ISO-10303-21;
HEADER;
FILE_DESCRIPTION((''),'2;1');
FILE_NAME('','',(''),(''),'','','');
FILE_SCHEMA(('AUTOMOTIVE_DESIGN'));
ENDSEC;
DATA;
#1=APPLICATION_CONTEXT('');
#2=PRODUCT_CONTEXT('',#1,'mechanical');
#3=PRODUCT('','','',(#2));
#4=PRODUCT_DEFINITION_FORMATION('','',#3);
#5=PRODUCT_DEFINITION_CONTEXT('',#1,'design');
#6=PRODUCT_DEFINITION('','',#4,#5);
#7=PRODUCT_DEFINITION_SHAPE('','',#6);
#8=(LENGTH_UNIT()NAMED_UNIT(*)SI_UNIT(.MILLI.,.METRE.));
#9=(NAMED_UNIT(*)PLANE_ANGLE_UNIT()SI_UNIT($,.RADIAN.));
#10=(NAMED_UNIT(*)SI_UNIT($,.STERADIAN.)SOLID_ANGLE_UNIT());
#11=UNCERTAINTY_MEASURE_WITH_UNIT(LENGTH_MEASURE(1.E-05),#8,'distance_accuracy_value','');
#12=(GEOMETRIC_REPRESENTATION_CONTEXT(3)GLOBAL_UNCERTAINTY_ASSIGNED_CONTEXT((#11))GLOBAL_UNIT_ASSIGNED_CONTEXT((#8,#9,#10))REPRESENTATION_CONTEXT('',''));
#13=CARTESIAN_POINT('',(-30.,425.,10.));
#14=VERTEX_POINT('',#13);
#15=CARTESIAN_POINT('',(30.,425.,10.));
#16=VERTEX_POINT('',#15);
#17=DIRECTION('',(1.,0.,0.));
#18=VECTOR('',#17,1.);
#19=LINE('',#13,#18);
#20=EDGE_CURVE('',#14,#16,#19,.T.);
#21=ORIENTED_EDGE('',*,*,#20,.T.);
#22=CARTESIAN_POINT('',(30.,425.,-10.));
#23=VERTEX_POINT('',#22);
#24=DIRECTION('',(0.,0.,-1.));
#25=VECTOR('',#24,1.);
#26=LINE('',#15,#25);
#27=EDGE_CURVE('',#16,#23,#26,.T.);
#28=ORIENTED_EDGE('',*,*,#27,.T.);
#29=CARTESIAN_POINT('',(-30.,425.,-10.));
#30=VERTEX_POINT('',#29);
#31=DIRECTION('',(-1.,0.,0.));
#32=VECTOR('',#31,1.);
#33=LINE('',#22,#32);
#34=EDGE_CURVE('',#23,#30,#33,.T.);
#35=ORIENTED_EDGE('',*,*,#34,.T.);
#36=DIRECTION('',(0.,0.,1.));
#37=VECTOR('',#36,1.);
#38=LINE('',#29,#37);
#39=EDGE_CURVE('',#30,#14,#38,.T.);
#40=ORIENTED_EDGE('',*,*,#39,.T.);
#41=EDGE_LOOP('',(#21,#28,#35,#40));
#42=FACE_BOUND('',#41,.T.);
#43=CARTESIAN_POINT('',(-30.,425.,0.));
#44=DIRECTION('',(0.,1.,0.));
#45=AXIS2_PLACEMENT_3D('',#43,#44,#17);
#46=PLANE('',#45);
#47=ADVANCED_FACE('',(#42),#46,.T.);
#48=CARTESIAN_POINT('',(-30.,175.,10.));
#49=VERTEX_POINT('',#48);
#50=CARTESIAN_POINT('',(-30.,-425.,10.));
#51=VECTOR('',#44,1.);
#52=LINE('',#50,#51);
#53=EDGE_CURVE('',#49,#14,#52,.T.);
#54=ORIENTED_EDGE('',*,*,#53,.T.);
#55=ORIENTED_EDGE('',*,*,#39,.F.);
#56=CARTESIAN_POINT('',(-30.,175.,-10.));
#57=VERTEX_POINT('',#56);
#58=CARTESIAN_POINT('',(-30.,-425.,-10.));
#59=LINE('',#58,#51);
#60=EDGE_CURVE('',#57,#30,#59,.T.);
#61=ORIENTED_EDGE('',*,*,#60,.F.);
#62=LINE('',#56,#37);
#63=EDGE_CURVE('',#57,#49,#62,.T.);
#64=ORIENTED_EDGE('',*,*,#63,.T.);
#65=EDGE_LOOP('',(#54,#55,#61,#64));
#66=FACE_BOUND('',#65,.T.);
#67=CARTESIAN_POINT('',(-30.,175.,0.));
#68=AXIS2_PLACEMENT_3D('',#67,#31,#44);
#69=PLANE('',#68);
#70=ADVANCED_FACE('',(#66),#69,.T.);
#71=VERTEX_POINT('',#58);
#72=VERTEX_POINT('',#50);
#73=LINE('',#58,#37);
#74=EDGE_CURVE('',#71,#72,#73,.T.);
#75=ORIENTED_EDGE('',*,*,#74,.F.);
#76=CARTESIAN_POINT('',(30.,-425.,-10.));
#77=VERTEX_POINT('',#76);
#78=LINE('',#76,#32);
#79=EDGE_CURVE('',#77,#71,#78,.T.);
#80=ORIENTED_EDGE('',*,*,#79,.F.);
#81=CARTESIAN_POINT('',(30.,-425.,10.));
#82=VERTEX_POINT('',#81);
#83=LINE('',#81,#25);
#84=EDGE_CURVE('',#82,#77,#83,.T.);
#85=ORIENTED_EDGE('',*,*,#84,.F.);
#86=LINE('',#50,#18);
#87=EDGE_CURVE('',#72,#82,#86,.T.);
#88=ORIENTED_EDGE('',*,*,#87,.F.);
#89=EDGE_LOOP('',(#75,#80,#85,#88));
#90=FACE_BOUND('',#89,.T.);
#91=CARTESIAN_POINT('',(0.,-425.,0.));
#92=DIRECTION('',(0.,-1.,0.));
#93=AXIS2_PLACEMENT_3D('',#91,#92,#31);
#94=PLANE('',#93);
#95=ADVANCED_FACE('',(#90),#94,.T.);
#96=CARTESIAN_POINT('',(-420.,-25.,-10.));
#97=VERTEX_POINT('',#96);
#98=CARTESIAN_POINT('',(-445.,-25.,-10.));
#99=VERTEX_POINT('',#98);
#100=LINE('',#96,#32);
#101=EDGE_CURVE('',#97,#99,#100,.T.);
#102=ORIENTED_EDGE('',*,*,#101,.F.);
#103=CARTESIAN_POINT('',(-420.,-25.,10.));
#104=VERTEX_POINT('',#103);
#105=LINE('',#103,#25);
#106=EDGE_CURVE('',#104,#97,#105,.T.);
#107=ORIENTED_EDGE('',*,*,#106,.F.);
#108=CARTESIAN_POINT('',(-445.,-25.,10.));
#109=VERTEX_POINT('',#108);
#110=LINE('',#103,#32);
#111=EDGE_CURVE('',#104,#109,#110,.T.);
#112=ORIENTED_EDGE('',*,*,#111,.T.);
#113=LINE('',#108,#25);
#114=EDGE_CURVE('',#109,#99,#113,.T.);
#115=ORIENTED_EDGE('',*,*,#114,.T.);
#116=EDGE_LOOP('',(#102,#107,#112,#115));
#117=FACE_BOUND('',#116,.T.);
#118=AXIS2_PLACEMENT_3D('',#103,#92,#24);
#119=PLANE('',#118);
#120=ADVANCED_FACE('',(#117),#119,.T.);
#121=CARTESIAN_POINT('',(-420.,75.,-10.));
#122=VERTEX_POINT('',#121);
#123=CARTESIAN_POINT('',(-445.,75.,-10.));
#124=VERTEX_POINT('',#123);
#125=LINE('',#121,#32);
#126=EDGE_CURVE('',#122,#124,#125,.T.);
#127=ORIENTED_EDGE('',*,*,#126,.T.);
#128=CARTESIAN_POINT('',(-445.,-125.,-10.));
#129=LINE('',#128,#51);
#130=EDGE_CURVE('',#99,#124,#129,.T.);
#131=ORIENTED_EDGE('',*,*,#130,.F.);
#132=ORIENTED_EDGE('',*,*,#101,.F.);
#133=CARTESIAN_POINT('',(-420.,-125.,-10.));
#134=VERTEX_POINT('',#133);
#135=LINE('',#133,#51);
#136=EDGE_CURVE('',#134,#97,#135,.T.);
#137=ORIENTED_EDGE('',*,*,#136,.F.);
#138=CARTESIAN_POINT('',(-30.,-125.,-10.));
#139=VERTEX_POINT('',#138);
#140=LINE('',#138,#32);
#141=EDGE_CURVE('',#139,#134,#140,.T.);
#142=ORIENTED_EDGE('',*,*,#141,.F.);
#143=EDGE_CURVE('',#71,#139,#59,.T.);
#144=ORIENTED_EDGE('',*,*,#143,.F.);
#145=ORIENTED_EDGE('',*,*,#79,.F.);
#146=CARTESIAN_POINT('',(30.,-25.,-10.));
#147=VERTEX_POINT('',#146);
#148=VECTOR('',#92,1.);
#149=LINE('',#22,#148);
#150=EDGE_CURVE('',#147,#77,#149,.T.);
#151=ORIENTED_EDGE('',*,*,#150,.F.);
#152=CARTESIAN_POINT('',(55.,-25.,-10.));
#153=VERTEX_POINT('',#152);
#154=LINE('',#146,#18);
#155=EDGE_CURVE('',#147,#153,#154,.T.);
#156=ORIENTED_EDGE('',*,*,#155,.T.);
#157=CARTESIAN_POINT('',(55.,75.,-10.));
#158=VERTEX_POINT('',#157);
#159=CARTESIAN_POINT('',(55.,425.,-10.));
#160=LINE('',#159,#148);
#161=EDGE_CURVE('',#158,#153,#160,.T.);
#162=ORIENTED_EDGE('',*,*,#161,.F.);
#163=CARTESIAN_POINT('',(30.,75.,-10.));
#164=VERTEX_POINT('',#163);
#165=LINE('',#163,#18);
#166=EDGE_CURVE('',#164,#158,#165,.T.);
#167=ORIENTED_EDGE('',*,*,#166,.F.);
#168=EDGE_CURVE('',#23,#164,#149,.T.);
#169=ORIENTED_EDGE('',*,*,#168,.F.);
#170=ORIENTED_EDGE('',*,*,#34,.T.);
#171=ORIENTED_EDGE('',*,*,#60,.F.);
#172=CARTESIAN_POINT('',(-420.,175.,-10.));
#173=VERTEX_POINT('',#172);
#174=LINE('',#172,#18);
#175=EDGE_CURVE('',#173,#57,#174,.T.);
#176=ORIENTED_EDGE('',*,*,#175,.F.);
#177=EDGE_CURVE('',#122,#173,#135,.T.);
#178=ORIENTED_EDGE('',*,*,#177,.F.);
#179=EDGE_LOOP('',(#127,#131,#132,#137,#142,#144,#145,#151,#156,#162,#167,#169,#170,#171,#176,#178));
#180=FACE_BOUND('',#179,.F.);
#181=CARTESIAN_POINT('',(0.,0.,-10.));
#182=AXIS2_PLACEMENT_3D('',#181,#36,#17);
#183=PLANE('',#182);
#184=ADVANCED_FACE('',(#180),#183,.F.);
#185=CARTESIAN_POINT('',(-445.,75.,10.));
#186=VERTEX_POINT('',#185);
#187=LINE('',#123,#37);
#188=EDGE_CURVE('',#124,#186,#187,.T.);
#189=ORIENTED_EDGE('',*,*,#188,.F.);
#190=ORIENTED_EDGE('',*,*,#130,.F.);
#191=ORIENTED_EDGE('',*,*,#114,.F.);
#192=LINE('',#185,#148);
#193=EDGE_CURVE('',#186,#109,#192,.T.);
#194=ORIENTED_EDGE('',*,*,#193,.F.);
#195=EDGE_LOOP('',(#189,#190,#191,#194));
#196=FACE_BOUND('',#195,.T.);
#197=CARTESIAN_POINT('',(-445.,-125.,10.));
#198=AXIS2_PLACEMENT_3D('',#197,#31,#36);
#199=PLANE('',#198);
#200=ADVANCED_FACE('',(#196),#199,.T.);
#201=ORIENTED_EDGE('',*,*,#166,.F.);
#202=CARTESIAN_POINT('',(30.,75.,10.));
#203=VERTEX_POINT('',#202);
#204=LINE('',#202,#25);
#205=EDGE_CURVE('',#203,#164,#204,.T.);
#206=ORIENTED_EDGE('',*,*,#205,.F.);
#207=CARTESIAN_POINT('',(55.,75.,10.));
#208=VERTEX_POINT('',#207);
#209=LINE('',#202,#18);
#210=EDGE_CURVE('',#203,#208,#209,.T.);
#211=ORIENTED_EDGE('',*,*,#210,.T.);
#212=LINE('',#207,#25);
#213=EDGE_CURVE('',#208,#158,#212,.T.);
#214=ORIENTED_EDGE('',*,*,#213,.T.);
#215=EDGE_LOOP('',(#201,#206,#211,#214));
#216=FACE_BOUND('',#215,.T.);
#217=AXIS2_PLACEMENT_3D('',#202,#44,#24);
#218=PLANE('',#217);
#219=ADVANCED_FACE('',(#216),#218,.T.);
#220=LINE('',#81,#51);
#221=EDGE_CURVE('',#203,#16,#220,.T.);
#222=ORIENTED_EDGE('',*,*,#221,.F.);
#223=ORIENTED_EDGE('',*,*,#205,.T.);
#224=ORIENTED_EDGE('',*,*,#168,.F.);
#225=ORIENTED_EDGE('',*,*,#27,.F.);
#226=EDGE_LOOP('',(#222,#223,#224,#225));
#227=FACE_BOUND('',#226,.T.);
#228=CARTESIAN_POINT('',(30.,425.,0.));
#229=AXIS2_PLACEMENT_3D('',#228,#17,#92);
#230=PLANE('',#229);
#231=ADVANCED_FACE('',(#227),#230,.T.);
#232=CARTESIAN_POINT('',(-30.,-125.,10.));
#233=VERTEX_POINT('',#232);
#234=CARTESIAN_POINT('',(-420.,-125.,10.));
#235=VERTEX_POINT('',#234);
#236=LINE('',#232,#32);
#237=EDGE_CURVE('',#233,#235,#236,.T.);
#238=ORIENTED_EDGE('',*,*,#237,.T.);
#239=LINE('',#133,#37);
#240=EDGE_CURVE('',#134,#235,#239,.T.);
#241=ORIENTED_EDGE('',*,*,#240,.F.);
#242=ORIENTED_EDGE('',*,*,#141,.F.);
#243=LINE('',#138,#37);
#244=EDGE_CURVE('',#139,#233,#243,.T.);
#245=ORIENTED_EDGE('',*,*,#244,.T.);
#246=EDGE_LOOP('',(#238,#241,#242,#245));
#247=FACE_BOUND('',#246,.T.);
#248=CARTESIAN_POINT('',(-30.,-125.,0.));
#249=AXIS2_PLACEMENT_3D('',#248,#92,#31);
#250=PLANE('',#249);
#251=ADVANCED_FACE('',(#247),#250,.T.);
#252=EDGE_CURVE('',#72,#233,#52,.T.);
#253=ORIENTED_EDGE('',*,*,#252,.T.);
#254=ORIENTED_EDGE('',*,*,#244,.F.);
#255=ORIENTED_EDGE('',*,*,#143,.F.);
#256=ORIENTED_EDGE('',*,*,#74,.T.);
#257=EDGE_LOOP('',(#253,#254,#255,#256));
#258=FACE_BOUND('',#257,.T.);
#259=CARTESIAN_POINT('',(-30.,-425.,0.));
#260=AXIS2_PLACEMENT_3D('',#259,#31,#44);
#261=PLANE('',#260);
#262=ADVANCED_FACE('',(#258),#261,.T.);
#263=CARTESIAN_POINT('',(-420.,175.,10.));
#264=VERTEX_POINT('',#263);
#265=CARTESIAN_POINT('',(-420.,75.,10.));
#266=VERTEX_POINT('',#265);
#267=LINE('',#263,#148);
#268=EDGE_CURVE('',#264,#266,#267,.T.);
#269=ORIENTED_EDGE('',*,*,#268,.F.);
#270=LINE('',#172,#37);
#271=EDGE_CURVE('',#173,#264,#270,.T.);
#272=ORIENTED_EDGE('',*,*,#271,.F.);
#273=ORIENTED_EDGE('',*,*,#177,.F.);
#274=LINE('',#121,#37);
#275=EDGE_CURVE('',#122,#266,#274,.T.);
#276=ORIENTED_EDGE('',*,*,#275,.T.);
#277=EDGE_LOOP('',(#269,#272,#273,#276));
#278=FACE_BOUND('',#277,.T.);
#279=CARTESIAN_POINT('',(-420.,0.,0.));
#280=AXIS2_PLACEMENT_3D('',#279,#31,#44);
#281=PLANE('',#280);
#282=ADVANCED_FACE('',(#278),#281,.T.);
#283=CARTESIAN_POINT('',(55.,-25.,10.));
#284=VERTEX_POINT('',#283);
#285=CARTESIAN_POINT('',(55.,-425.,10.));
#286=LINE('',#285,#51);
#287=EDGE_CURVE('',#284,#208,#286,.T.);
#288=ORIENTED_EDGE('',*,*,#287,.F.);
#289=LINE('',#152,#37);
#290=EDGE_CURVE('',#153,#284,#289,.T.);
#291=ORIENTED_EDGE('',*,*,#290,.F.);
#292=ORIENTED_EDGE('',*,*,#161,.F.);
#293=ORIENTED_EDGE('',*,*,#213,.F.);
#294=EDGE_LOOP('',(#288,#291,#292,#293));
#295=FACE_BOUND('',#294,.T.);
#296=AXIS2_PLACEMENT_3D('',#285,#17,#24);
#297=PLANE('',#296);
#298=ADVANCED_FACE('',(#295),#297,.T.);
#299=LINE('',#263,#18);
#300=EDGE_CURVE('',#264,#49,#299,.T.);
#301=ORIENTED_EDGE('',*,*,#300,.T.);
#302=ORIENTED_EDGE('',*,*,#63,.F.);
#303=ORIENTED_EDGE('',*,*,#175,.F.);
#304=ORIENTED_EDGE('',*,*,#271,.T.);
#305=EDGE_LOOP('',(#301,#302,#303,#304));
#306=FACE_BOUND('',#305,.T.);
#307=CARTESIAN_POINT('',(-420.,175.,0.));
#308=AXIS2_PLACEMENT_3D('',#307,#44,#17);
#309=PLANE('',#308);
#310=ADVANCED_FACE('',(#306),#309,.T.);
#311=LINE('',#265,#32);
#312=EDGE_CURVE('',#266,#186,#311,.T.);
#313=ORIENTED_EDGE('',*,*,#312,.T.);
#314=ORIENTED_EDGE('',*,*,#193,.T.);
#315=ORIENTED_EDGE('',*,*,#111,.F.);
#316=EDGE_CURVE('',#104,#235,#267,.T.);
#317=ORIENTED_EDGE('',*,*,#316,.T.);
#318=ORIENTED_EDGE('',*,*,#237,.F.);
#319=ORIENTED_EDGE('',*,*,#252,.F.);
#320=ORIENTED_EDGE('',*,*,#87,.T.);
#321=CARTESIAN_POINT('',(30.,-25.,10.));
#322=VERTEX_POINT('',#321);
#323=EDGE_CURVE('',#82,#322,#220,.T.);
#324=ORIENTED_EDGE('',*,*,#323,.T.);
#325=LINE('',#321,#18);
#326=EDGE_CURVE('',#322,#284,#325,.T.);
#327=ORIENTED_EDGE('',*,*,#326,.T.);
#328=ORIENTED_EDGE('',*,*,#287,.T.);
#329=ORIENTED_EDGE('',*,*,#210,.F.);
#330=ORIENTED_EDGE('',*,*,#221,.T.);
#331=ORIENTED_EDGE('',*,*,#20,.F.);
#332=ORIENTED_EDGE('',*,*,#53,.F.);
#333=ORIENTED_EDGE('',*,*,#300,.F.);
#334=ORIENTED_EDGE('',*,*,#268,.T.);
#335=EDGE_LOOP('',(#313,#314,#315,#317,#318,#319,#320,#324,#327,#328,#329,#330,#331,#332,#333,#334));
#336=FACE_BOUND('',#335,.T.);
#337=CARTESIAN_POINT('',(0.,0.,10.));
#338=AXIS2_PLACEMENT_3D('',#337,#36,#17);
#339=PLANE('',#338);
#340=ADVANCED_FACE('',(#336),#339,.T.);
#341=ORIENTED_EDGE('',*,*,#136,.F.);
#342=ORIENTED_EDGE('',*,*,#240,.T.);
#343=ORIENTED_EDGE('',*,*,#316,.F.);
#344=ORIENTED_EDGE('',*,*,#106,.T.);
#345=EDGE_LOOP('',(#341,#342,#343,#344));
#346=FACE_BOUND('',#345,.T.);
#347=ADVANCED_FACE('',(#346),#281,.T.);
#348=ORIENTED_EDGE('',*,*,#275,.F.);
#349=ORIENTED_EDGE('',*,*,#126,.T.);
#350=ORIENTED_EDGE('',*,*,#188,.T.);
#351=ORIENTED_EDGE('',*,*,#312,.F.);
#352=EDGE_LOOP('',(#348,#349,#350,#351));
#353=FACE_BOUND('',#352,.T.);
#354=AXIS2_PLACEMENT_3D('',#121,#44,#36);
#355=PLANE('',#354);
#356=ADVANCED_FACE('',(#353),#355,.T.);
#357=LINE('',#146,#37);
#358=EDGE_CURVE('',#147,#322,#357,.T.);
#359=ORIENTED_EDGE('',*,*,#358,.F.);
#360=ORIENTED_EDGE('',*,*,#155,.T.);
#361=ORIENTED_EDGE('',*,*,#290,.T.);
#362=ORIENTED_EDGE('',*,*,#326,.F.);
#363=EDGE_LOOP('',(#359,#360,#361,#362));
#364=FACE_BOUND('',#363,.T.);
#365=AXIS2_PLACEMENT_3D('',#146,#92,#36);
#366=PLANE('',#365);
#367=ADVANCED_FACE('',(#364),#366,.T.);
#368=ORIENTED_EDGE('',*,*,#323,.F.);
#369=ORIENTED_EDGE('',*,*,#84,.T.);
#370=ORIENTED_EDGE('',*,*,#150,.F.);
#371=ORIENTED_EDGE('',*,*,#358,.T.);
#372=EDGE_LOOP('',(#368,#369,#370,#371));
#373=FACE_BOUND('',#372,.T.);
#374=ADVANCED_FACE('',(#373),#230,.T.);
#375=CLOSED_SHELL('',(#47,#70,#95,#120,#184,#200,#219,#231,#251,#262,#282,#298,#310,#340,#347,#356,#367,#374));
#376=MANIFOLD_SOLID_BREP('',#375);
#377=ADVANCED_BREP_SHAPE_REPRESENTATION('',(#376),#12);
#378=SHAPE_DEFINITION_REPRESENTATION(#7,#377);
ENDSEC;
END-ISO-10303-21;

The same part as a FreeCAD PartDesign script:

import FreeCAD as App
import Part
import Sketcher

V = App.Vector

doc = App.newDocument("Part")
body = doc.addObject("PartDesign::Body", "Body")

sketch1 = doc.addObject("Sketcher::SketchObject", "Sketch")
body.addObject(sketch1)
sketch1.AttachmentSupport = (doc.XY_Plane, [""])
sketch1.MapMode = "FlatFace"
sketch1.addGeometry([
    Part.LineSegment(V(-30, 425, 0), V(-30, 175, 0)),
    Part.LineSegment(V(-30, 175, 0), V(-420, 175, 0)),
    Part.LineSegment(V(-420, 175, 0), V(-420, -125, 0)),
    Part.LineSegment(V(-420, -125, 0), V(-30, -125, 0)),
    Part.LineSegment(V(-30, -125, 0), V(-30, -425, 0)),
    Part.LineSegment(V(-30, -425, 0), V(30, -425, 0)),
    Part.LineSegment(V(30, -425, 0), V(30, 425, 0)),
    Part.LineSegment(V(30, 425, 0), V(-30, 425, 0)),
], False)
sketch1.addConstraint([
    Sketcher.Constraint("Coincident", 0, 2, 1, 1),
    Sketcher.Constraint("Coincident", 1, 2, 2, 1),
    Sketcher.Constraint("Coincident", 2, 2, 3, 1),
    Sketcher.Constraint("Coincident", 3, 2, 4, 1),
    Sketcher.Constraint("Coincident", 4, 2, 5, 1),
    Sketcher.Constraint("Coincident", 5, 2, 6, 1),
    Sketcher.Constraint("Coincident", 6, 2, 7, 1),
    Sketcher.Constraint("Coincident", 7, 2, 0, 1),
    Sketcher.Constraint("Vertical", 0),
    Sketcher.Constraint("Horizontal", 1),
    Sketcher.Constraint("Vertical", 2),
    Sketcher.Constraint("Horizontal", 3),
    Sketcher.Constraint("Vertical", 4),
    Sketcher.Constraint("Horizontal", 5),
    Sketcher.Constraint("Vertical", 6),
    Sketcher.Constraint("Horizontal", 7),
    Sketcher.Constraint("Symmetric", 4, 2, 6, 2, -1, 1),
    Sketcher.Constraint("Vertical", 0, 2, 3, 2),
    Sketcher.Constraint("Equal", 2, 4),
    Sketcher.Constraint("DistanceX", 1, 2, 1, 1, 390.0),
    Sketcher.Constraint("DistanceX", 5, 1, 5, 2, 60.0),
    Sketcher.Constraint("DistanceY", 0, 2, 0, 1, 250.0),
    Sketcher.Constraint("DistanceY", 2, 2, 2, 1, 300.0),
])
pad1 = doc.addObject("PartDesign::Pad", "Pad")
body.addObject(pad1)
pad1.Profile = sketch1
pad1.Length = 20
pad1.Midplane = True

sketch2 = doc.addObject("Sketcher::SketchObject", "Sketch001")
body.addObject(sketch2)
sketch2.AttachmentSupport = (doc.YZ_Plane, [""])
sketch2.MapMode = "FlatFace"
sketch2.AttachmentOffset = App.Placement(V(0, 0, 30), App.Rotation())
sketch2.addGeometry([
    Part.LineSegment(V(75, 10, 0), V(-25, 10, 0)),
    Part.LineSegment(V(-25, 10, 0), V(-25, -10, 0)),
    Part.LineSegment(V(-25, -10, 0), V(75, -10, 0)),
    Part.LineSegment(V(75, -10, 0), V(75, 10, 0)),
], False)
sketch2.addConstraint([
    Sketcher.Constraint("Coincident", 0, 2, 1, 1),
    Sketcher.Constraint("Coincident", 1, 2, 2, 1),
    Sketcher.Constraint("Coincident", 2, 2, 3, 1),
    Sketcher.Constraint("Coincident", 3, 2, 0, 1),
    Sketcher.Constraint("Horizontal", 0),
    Sketcher.Constraint("Vertical", 1),
    Sketcher.Constraint("Horizontal", 2),
    Sketcher.Constraint("Vertical", 3),
    Sketcher.Constraint("DistanceX", 0, 2, 0, 1, 100.0),
    Sketcher.Constraint("DistanceY", 1, 2, 1, 1, 20.0),
    Sketcher.Constraint("DistanceX", 0, 2, -1, 1, 25.0),
    Sketcher.Constraint("DistanceY", -1, 1, 0, 2, 10.0),
])
pad2 = doc.addObject("PartDesign::Pad", "Pad001")
body.addObject(pad2)
pad2.Profile = sketch2
pad2.Length = 25

sketch3 = doc.addObject("Sketcher::SketchObject", "Sketch002")
body.addObject(sketch3)
sketch3.AttachmentSupport = (doc.YZ_Plane, [""])
sketch3.MapMode = "FlatFace"
sketch3.AttachmentOffset = App.Placement(V(0, 0, -420), App.Rotation())
sketch3.addGeometry([
    Part.LineSegment(V(75, -10, 0), V(-25, -10, 0)),
    Part.LineSegment(V(-25, -10, 0), V(-25, 10, 0)),
    Part.LineSegment(V(-25, 10, 0), V(75, 10, 0)),
    Part.LineSegment(V(75, 10, 0), V(75, -10, 0)),
], False)
sketch3.addConstraint([
    Sketcher.Constraint("Coincident", 0, 2, 1, 1),
    Sketcher.Constraint("Coincident", 1, 2, 2, 1),
    Sketcher.Constraint("Coincident", 2, 2, 3, 1),
    Sketcher.Constraint("Coincident", 3, 2, 0, 1),
    Sketcher.Constraint("Horizontal", 0),
    Sketcher.Constraint("Vertical", 1),
    Sketcher.Constraint("Horizontal", 2),
    Sketcher.Constraint("Vertical", 3),
    Sketcher.Constraint("DistanceX", 0, 2, 0, 1, 100.0),
    Sketcher.Constraint("DistanceY", 1, 1, 1, 2, 20.0),
    Sketcher.Constraint("DistanceX", 0, 2, -1, 1, 25.0),
    Sketcher.Constraint("DistanceY", 0, 2, -1, 1, 10.0),
])
pad3 = doc.addObject("PartDesign::Pad", "Pad002")
body.addObject(pad3)
pad3.Profile = sketch3
pad3.Length = 25
pad3.Reversed = True

doc.recompute()
